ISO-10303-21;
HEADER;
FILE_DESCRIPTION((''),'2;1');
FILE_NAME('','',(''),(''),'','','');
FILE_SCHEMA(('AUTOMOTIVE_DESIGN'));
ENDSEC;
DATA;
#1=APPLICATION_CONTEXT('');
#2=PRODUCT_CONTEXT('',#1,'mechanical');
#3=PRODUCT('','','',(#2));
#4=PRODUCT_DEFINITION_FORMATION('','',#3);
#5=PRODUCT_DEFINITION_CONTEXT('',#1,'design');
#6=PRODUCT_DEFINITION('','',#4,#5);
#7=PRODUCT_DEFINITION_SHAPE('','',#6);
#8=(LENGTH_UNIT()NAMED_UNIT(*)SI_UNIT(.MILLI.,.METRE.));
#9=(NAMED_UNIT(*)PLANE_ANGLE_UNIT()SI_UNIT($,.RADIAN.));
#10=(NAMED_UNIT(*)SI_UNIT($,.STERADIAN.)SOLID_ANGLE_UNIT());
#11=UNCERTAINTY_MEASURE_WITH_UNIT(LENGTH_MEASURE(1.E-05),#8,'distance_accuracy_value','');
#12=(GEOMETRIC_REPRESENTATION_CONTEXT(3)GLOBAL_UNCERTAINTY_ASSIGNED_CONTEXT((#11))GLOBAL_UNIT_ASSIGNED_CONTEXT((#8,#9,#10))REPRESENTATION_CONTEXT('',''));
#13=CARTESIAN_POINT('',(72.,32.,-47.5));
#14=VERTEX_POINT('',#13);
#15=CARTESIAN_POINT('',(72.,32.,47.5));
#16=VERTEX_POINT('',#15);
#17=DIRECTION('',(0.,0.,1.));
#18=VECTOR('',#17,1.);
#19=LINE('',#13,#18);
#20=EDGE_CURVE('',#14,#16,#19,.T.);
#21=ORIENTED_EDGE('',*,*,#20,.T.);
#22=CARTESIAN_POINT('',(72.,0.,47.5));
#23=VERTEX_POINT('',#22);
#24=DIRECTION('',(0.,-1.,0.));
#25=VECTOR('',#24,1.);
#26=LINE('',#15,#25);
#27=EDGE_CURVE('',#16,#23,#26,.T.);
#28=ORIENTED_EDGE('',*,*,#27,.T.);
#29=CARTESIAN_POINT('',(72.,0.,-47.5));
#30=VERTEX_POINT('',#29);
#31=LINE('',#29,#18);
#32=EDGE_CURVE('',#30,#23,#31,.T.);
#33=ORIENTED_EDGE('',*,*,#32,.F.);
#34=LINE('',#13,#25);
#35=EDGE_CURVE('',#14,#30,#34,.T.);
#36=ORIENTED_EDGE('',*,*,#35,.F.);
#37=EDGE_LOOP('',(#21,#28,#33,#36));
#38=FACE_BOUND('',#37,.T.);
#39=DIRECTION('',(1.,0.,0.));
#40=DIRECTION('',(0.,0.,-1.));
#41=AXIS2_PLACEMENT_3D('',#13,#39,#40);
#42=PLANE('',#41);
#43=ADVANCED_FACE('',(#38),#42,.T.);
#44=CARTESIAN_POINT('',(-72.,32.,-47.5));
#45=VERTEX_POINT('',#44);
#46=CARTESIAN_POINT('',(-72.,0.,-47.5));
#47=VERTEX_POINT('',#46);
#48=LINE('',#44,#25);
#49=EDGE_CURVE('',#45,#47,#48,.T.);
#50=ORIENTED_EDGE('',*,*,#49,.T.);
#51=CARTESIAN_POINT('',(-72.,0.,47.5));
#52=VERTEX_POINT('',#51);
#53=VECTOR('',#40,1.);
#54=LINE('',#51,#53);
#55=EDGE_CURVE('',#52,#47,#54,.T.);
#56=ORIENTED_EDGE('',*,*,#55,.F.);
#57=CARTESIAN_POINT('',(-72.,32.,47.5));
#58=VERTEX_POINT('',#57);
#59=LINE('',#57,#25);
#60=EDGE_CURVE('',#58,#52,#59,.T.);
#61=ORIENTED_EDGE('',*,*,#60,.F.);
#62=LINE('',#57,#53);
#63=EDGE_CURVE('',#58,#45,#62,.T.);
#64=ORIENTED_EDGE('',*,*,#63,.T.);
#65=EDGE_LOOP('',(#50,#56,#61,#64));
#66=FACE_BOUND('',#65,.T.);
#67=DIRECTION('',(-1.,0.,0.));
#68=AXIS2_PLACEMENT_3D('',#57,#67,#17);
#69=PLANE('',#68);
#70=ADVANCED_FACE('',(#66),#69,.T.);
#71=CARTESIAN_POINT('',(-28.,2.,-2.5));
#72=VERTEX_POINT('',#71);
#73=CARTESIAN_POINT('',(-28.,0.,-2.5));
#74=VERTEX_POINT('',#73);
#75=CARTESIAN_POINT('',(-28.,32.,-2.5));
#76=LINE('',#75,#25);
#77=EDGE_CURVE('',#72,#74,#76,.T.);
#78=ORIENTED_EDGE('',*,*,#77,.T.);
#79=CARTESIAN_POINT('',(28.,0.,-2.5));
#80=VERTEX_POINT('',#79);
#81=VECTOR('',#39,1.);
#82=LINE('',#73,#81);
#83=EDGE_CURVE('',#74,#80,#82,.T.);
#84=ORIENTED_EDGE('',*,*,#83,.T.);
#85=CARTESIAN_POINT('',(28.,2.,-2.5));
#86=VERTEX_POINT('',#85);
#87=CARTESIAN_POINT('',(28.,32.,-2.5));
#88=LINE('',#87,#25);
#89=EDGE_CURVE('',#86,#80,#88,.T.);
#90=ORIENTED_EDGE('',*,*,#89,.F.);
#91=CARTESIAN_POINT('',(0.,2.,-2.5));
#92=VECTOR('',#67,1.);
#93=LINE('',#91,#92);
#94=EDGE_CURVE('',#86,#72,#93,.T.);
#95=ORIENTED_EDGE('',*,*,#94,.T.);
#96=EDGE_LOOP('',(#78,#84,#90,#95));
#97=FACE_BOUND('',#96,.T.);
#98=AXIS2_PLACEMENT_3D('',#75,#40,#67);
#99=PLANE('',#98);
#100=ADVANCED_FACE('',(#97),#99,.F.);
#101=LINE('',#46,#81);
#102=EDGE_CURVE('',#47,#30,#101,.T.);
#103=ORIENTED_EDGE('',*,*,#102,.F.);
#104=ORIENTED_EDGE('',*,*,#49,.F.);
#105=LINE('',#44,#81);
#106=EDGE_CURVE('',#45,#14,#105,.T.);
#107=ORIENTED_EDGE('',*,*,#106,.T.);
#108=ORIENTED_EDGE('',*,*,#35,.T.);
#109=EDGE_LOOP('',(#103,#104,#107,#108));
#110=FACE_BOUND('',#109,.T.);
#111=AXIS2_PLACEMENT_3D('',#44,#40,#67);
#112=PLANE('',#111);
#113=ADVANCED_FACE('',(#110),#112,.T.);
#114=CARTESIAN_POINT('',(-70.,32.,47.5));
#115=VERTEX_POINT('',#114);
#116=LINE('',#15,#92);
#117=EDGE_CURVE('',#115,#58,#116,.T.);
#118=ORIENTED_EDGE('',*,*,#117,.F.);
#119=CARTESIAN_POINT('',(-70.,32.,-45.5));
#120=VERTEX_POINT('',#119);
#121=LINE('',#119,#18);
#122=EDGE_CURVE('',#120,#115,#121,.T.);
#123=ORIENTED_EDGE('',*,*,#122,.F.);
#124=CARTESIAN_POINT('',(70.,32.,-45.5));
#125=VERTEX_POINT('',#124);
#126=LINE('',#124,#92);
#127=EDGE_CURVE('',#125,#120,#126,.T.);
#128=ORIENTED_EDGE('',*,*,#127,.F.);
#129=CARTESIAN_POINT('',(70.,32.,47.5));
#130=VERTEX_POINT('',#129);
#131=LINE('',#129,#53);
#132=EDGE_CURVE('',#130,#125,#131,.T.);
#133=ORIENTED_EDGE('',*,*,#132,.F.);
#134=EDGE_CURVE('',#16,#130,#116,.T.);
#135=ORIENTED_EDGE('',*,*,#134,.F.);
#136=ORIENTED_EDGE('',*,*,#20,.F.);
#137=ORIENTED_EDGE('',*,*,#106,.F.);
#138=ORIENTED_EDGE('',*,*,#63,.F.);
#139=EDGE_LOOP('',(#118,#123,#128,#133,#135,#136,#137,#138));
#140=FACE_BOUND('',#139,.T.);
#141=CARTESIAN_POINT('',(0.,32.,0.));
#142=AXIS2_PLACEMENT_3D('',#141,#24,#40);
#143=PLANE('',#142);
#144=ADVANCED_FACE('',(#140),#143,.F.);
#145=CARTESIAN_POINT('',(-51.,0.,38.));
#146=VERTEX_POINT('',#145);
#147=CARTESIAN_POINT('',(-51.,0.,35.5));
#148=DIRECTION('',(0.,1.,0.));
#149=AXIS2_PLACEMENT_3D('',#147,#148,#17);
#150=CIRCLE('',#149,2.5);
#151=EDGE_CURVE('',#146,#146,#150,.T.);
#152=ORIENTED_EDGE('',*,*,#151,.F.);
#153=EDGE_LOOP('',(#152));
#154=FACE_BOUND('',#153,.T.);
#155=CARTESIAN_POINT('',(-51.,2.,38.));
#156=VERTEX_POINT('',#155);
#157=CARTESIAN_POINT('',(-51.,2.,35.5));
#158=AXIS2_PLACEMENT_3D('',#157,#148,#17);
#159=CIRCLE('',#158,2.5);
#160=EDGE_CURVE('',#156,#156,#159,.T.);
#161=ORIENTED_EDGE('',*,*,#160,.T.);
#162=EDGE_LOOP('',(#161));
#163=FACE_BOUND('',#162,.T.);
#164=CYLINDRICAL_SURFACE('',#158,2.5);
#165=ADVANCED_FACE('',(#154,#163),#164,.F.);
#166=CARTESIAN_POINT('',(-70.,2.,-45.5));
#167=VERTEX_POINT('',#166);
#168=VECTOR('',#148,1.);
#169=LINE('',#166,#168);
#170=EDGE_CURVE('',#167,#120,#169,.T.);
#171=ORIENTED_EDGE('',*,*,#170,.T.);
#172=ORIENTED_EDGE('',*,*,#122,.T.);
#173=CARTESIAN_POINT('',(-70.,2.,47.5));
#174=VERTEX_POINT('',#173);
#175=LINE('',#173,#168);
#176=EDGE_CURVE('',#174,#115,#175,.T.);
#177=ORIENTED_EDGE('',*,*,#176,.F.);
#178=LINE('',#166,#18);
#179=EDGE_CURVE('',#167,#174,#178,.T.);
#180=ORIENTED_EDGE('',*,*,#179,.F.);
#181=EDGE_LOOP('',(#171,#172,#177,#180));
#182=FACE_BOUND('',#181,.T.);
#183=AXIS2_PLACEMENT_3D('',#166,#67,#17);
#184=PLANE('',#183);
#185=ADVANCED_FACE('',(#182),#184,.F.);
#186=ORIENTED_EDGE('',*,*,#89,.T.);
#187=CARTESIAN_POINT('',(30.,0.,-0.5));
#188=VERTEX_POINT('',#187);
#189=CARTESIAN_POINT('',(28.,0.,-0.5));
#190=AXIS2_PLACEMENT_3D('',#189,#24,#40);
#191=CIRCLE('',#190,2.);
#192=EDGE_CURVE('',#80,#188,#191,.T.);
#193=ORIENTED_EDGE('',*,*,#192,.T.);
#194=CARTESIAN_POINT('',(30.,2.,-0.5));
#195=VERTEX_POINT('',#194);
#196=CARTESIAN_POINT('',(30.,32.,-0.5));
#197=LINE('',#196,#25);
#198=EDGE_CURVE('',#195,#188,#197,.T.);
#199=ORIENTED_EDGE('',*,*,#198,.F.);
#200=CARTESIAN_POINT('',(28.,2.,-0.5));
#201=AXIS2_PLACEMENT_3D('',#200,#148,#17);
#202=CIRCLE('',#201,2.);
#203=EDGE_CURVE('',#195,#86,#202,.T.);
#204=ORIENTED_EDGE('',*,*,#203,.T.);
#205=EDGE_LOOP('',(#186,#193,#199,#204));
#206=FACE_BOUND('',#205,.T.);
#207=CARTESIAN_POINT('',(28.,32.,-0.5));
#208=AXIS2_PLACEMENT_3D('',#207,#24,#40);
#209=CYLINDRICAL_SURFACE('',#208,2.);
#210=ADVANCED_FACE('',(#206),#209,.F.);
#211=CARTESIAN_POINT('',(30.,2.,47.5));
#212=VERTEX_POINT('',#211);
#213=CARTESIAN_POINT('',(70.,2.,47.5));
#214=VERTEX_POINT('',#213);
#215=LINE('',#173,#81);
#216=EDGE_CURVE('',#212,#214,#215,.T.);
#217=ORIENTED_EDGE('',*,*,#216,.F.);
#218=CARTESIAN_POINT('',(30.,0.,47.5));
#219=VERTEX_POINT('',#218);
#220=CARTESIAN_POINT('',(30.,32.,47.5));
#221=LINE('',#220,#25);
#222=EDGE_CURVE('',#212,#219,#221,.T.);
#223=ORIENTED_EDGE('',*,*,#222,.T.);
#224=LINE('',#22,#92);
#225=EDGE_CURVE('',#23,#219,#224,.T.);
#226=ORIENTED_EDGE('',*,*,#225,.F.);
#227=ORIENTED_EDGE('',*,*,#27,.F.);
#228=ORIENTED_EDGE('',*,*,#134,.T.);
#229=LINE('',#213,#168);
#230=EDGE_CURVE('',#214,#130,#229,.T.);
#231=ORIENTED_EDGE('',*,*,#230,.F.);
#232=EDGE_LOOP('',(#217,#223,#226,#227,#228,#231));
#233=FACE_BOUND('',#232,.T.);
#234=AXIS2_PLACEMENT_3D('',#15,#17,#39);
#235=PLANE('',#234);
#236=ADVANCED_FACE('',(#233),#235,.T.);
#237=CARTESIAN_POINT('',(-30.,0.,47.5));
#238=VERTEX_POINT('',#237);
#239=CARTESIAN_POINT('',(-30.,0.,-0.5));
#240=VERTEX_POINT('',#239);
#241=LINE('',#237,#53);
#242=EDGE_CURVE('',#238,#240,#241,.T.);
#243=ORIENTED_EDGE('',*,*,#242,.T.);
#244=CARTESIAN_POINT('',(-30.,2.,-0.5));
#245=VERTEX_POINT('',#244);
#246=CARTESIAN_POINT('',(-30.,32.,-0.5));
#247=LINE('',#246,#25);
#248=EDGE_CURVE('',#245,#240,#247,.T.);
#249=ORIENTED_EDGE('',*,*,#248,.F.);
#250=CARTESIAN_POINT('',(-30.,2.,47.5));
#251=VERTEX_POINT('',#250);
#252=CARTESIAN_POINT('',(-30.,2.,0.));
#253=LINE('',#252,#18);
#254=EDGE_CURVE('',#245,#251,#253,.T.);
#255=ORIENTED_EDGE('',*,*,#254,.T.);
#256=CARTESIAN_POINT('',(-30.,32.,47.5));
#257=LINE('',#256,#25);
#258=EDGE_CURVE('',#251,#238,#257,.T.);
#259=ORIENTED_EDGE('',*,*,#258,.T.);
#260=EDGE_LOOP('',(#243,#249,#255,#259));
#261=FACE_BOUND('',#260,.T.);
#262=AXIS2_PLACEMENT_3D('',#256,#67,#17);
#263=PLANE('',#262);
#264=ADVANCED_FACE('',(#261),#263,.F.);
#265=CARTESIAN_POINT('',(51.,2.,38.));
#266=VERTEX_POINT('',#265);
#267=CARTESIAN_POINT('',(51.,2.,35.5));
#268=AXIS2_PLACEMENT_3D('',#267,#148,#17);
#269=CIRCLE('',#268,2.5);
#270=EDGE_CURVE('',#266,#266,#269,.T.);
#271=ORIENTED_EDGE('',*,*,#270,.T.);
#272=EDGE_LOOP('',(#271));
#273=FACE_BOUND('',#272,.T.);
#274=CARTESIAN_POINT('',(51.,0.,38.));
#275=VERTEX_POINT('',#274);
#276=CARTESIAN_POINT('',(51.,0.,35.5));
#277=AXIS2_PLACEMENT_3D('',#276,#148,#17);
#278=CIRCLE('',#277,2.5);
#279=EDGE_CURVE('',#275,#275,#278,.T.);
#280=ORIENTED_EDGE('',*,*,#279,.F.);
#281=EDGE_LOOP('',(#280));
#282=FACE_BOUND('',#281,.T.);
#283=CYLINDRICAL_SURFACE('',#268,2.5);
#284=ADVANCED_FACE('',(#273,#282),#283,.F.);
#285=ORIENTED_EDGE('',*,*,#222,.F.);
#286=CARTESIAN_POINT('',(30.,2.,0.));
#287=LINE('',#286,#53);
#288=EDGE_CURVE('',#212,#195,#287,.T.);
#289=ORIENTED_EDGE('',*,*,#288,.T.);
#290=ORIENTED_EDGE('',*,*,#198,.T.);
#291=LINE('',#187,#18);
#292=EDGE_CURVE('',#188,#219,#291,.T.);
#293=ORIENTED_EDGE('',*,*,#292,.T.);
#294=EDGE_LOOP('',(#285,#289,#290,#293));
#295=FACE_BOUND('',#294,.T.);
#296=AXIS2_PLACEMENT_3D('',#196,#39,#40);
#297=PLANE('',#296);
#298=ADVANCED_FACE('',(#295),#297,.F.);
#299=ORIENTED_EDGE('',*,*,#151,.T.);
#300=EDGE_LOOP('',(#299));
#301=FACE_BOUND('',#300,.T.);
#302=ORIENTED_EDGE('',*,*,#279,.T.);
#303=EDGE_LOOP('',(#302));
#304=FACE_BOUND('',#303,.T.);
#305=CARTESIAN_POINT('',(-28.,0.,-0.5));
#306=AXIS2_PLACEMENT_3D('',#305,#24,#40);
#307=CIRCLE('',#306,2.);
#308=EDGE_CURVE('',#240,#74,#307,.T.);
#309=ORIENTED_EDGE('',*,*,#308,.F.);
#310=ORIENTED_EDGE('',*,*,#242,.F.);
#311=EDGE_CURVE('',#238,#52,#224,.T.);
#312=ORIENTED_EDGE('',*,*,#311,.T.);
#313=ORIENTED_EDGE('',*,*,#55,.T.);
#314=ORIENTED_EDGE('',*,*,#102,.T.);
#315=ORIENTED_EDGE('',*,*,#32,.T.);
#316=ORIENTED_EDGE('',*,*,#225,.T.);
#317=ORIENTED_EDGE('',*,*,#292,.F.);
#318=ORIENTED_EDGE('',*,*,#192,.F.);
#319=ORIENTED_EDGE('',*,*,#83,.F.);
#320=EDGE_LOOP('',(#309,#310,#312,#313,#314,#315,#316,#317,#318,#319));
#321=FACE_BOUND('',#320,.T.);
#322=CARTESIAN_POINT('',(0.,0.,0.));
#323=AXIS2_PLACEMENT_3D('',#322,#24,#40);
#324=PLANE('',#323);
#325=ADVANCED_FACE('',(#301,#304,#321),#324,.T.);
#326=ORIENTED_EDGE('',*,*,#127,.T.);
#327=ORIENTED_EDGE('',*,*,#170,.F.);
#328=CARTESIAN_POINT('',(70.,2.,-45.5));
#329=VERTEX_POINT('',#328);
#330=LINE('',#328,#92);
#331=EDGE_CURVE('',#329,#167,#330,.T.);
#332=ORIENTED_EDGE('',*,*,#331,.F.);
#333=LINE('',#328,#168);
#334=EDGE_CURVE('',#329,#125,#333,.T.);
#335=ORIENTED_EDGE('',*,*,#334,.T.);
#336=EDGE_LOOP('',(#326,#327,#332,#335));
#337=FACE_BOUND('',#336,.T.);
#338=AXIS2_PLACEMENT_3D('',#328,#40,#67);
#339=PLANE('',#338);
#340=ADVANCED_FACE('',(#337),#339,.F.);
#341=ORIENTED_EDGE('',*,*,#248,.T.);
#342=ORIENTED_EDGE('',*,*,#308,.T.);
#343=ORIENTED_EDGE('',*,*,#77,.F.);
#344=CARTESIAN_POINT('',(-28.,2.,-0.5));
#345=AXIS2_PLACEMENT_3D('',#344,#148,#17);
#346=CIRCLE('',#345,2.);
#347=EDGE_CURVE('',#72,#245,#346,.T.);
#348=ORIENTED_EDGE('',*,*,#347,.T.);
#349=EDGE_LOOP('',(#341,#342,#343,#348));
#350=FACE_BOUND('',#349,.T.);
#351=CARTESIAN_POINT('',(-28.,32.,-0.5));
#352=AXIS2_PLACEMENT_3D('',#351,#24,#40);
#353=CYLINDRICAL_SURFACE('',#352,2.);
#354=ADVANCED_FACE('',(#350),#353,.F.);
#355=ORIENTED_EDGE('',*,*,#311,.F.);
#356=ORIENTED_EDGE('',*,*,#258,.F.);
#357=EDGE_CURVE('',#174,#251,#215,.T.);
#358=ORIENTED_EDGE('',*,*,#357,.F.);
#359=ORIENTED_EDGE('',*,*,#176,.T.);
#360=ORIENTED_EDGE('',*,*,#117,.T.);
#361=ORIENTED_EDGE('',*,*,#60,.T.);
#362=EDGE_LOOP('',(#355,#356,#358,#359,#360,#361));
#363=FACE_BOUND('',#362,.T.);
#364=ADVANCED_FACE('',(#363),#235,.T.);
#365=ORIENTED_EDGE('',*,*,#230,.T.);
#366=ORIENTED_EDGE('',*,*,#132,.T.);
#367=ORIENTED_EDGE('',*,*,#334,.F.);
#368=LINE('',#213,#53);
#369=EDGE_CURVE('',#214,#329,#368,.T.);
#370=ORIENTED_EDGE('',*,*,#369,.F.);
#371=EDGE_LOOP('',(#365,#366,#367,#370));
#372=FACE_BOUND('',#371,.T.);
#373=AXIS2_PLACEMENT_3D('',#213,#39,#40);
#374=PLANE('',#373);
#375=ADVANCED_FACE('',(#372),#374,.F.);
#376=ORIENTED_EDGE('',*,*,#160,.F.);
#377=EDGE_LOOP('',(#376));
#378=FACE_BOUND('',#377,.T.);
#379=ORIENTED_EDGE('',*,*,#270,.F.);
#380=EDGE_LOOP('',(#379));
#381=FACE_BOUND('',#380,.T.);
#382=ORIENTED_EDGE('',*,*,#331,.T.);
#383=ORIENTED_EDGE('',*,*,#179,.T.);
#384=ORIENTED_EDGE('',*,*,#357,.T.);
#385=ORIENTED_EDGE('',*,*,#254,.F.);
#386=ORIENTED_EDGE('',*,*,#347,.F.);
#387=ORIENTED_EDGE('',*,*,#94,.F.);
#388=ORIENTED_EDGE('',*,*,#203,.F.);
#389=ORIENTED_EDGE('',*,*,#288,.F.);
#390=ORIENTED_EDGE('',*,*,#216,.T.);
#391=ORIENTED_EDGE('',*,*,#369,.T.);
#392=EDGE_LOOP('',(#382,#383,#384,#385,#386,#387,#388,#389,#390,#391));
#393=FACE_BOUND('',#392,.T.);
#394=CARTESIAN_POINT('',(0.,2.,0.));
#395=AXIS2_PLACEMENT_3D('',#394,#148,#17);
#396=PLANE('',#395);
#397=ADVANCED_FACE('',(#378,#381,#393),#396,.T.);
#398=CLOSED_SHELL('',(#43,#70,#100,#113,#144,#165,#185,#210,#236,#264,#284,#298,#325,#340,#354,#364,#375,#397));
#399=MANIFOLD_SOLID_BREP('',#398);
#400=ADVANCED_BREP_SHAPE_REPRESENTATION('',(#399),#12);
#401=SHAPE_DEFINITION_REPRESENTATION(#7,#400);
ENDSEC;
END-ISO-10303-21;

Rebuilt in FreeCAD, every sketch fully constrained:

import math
import FreeCAD as App
import Part
import Sketcher

V = App.Vector
Q = App.Units.Quantity

doc = App.newDocument("Part")
params = doc.addObject("Spreadsheet::Sheet", "Params")
for row, (alias, value) in enumerate([
    ("sketch1_width", "144 mm"),
    ("sketch1_height", "95 mm"),
    ("pad1_length", "32 mm"),
    ("sketch2_width", "140 mm"),
    ("sketch2_height", "93 mm"),
    ("pocket1_length", "30 mm"),
    ("sketch3_radius", "2 mm"),
    ("sketch3_width", "60 mm"),
    ("sketch3_height", "48 mm"),
    ("sketch4_diameter", "5 mm"),
    ("hole_diameter", "5 mm"),
], start=1):
    params.set(f"A{row}", alias)
    params.set(f"B{row}", "=" + value)
    params.setAlias(f"B{row}", alias)

body = doc.addObject("PartDesign::Body", "Body")

# Sketch on XZ plane
sketch1 = body.newObject("Sketcher::SketchObject", "Sketch")
sketch1.AttachmentSupport = (doc.getObject("XZ_Plane"), [""])
sketch1.MapMode = "FlatFace"
sketch1.addGeometry([
    Part.LineSegment(V(-72, 48, 0), V(-72, -48, 0)),
    Part.LineSegment(V(-72, -48, 0), V(72, -48, 0)),
    Part.LineSegment(V(72, -48, 0), V(72, 48, 0)),
    Part.LineSegment(V(72, 48, 0), V(-72, 48, 0)),
], False)
sketch1.addConstraint([
    Sketcher.Constraint("Coincident", 0, 2, 1, 1),
    Sketcher.Constraint("Coincident", 1, 2, 2, 1),
    Sketcher.Constraint("Coincident", 2, 2, 3, 1),
    Sketcher.Constraint("Coincident", 3, 2, 0, 1),
    Sketcher.Constraint("Vertical", 0),
    Sketcher.Constraint("Horizontal", 1),
    Sketcher.Constraint("Vertical", 2),
    Sketcher.Constraint("Horizontal", 3),
    Sketcher.Constraint("Symmetric", 0, 2, 2, 2, -1, 1),
    Sketcher.Constraint("DistanceX", 1, 1, 1, 2, Q("144 mm")),
    Sketcher.Constraint("DistanceY", 0, 2, 0, 1, Q("95 mm")),
])
sketch1.setExpression("Constraints[9]", "Params.sketch1_width")
sketch1.setExpression("Constraints[10]", "Params.sketch1_height")
pad1 = body.newObject("PartDesign::Pad", "Pad")
pad1.Profile = sketch1
pad1.setExpression("Length", "Params.pad1_length")
pad1.Reversed = True

# Sketch on XZ plane
sketch2 = body.newObject("Sketcher::SketchObject", "Sketch001")
sketch2.AttachmentSupport = (doc.getObject("XZ_Plane"), [""])
sketch2.MapMode = "FlatFace"
sketch2.AttachmentOffset = App.Placement(V(0, 0, -32), App.Rotation())
sketch2.addGeometry([
    Part.LineSegment(V(70, 48, 0), V(70, -46, 0)),
    Part.LineSegment(V(70, -46, 0), V(-70, -46, 0)),
    Part.LineSegment(V(-70, -46, 0), V(-70, 48, 0)),
    Part.LineSegment(V(-70, 48, 0), V(70, 48, 0)),
], False)
sketch2.addConstraint([
    Sketcher.Constraint("Coincident", 0, 2, 1, 1),
    Sketcher.Constraint("Coincident", 1, 2, 2, 1),
    Sketcher.Constraint("Coincident", 2, 2, 3, 1),
    Sketcher.Constraint("Coincident", 3, 2, 0, 1),
    Sketcher.Constraint("Vertical", 0),
    Sketcher.Constraint("Horizontal", 1),
    Sketcher.Constraint("Vertical", 2),
    Sketcher.Constraint("Horizontal", 3),
    Sketcher.Constraint("DistanceX", 1, 2, 1, 1, Q("140 mm")),
    Sketcher.Constraint("DistanceY", 0, 2, 0, 1, Q("93 mm")),
    Sketcher.Constraint("DistanceX", -1, 1, 0, 2, Q("70 mm")),
    Sketcher.Constraint("DistanceY", 0, 2, -1, 1, Q("45.5 mm")),
])
sketch2.setExpression("Constraints[8]", "Params.sketch2_width")
sketch2.setExpression("Constraints[9]", "Params.sketch2_height")
pocket1 = body.newObject("PartDesign::Pocket", "Pocket")
pocket1.Profile = sketch2
pocket1.setExpression("Length", "Params.pocket1_length")
pocket1.Reversed = True

# Sketch on XZ plane
sketch3 = body.newObject("Sketcher::SketchObject", "Sketch002")
sketch3.AttachmentSupport = (doc.getObject("XZ_Plane"), [""])
sketch3.MapMode = "FlatFace"
sketch3.addGeometry([
    Part.LineSegment(V(30, 47.5, 0), V(-30, 47.5, 0)),  # 0
    Part.LineSegment(V(-30, 47.5, 0), V(-30, -0.5, 0)),  # 1
    Part.ArcOfCircle(Part.Circle(V(-28, -0.5, 0), V(0, 0, 1), 2), math.radians(-180), math.radians(-90)),  # 2
    Part.LineSegment(V(-28, -2.5, 0), V(28, -2.5, 0)),  # 3
    Part.ArcOfCircle(Part.Circle(V(28, -0.5, 0), V(0, 0, 1), 2), math.radians(-90), math.radians(0)),  # 4
    Part.LineSegment(V(30, -0.5, 0), V(30, 47.5, 0)),  # 5
], False)
sketch3.addConstraint([
    Sketcher.Constraint("Coincident", 0, 2, 1, 1),
    Sketcher.Constraint("Tangent", 1, 2, 2, 1),
    Sketcher.Constraint("Tangent", 2, 2, 3, 1),
    Sketcher.Constraint("Tangent", 3, 2, 4, 1),
    Sketcher.Constraint("Tangent", 4, 2, 5, 1),
    Sketcher.Constraint("Coincident", 5, 2, 0, 1),
    Sketcher.Constraint("Horizontal", 0),
    Sketcher.Constraint("Vertical", 1),
    Sketcher.Constraint("Horizontal", 3),
    Sketcher.Constraint("Vertical", 5),
    Sketcher.Constraint("Equal", 2, 4),
    Sketcher.Constraint("Radius", 2, Q("2 mm")),
    Sketcher.Constraint("DistanceX", 0, 2, 0, 1, Q("60 mm")),
    Sketcher.Constraint("DistanceY", 1, 2, 1, 1, Q("48 mm")),
    Sketcher.Constraint("DistanceX", 2, 3, -1, 1, Q("28 mm")),
    Sketcher.Constraint("DistanceY", 2, 3, -1, 1, Q("0.5 mm")),
])
sketch3.setExpression("Constraints[11]", "Params.sketch3_radius")
sketch3.setExpression("Constraints[12]", "Params.sketch3_width")
sketch3.setExpression("Constraints[13]", "Params.sketch3_height")
pocket2 = body.newObject("PartDesign::Pocket", "Pocket001")
pocket2.Profile = sketch3
pocket2.Type = "ThroughAll"

# Sketch on XZ plane
sketch4 = body.newObject("Sketcher::SketchObject", "Sketch003")
sketch4.AttachmentSupport = (doc.getObject("XZ_Plane"), [""])
sketch4.MapMode = "FlatFace"
sketch4.AttachmentOffset = App.Placement(V(0, 0, -2), App.Rotation())
sketch4.addGeometry([
    Part.Circle(V(51, 35.5, 0), V(0, 0, 1), 2.5),
    Part.Circle(V(-51, 35.5, 0), V(0, 0, 1), 2.5),
], False)
sketch4.addConstraint([
    Sketcher.Constraint("Equal", 0, 1),
    Sketcher.Constraint("Symmetric", 0, 3, 1, 3, -2),
    Sketcher.Constraint("Diameter", 0, Q("5 mm")),
    Sketcher.Constraint("DistanceX", -1, 1, 0, 3, Q("51 mm")),
    Sketcher.Constraint("DistanceY", -1, 1, 0, 3, Q("35.5 mm")),
])
sketch4.setExpression("Constraints[2]", "Params.sketch4_diameter")
doc.recompute()
hole = body.newObject("PartDesign::Hole", "Hole")
hole.Profile = sketch4
hole.ThreadType = "None"
hole.setExpression("Diameter", "Params.hole_diameter")
hole.DepthType = "ThroughAll"
hole.Reversed = True

doc.recompute()
